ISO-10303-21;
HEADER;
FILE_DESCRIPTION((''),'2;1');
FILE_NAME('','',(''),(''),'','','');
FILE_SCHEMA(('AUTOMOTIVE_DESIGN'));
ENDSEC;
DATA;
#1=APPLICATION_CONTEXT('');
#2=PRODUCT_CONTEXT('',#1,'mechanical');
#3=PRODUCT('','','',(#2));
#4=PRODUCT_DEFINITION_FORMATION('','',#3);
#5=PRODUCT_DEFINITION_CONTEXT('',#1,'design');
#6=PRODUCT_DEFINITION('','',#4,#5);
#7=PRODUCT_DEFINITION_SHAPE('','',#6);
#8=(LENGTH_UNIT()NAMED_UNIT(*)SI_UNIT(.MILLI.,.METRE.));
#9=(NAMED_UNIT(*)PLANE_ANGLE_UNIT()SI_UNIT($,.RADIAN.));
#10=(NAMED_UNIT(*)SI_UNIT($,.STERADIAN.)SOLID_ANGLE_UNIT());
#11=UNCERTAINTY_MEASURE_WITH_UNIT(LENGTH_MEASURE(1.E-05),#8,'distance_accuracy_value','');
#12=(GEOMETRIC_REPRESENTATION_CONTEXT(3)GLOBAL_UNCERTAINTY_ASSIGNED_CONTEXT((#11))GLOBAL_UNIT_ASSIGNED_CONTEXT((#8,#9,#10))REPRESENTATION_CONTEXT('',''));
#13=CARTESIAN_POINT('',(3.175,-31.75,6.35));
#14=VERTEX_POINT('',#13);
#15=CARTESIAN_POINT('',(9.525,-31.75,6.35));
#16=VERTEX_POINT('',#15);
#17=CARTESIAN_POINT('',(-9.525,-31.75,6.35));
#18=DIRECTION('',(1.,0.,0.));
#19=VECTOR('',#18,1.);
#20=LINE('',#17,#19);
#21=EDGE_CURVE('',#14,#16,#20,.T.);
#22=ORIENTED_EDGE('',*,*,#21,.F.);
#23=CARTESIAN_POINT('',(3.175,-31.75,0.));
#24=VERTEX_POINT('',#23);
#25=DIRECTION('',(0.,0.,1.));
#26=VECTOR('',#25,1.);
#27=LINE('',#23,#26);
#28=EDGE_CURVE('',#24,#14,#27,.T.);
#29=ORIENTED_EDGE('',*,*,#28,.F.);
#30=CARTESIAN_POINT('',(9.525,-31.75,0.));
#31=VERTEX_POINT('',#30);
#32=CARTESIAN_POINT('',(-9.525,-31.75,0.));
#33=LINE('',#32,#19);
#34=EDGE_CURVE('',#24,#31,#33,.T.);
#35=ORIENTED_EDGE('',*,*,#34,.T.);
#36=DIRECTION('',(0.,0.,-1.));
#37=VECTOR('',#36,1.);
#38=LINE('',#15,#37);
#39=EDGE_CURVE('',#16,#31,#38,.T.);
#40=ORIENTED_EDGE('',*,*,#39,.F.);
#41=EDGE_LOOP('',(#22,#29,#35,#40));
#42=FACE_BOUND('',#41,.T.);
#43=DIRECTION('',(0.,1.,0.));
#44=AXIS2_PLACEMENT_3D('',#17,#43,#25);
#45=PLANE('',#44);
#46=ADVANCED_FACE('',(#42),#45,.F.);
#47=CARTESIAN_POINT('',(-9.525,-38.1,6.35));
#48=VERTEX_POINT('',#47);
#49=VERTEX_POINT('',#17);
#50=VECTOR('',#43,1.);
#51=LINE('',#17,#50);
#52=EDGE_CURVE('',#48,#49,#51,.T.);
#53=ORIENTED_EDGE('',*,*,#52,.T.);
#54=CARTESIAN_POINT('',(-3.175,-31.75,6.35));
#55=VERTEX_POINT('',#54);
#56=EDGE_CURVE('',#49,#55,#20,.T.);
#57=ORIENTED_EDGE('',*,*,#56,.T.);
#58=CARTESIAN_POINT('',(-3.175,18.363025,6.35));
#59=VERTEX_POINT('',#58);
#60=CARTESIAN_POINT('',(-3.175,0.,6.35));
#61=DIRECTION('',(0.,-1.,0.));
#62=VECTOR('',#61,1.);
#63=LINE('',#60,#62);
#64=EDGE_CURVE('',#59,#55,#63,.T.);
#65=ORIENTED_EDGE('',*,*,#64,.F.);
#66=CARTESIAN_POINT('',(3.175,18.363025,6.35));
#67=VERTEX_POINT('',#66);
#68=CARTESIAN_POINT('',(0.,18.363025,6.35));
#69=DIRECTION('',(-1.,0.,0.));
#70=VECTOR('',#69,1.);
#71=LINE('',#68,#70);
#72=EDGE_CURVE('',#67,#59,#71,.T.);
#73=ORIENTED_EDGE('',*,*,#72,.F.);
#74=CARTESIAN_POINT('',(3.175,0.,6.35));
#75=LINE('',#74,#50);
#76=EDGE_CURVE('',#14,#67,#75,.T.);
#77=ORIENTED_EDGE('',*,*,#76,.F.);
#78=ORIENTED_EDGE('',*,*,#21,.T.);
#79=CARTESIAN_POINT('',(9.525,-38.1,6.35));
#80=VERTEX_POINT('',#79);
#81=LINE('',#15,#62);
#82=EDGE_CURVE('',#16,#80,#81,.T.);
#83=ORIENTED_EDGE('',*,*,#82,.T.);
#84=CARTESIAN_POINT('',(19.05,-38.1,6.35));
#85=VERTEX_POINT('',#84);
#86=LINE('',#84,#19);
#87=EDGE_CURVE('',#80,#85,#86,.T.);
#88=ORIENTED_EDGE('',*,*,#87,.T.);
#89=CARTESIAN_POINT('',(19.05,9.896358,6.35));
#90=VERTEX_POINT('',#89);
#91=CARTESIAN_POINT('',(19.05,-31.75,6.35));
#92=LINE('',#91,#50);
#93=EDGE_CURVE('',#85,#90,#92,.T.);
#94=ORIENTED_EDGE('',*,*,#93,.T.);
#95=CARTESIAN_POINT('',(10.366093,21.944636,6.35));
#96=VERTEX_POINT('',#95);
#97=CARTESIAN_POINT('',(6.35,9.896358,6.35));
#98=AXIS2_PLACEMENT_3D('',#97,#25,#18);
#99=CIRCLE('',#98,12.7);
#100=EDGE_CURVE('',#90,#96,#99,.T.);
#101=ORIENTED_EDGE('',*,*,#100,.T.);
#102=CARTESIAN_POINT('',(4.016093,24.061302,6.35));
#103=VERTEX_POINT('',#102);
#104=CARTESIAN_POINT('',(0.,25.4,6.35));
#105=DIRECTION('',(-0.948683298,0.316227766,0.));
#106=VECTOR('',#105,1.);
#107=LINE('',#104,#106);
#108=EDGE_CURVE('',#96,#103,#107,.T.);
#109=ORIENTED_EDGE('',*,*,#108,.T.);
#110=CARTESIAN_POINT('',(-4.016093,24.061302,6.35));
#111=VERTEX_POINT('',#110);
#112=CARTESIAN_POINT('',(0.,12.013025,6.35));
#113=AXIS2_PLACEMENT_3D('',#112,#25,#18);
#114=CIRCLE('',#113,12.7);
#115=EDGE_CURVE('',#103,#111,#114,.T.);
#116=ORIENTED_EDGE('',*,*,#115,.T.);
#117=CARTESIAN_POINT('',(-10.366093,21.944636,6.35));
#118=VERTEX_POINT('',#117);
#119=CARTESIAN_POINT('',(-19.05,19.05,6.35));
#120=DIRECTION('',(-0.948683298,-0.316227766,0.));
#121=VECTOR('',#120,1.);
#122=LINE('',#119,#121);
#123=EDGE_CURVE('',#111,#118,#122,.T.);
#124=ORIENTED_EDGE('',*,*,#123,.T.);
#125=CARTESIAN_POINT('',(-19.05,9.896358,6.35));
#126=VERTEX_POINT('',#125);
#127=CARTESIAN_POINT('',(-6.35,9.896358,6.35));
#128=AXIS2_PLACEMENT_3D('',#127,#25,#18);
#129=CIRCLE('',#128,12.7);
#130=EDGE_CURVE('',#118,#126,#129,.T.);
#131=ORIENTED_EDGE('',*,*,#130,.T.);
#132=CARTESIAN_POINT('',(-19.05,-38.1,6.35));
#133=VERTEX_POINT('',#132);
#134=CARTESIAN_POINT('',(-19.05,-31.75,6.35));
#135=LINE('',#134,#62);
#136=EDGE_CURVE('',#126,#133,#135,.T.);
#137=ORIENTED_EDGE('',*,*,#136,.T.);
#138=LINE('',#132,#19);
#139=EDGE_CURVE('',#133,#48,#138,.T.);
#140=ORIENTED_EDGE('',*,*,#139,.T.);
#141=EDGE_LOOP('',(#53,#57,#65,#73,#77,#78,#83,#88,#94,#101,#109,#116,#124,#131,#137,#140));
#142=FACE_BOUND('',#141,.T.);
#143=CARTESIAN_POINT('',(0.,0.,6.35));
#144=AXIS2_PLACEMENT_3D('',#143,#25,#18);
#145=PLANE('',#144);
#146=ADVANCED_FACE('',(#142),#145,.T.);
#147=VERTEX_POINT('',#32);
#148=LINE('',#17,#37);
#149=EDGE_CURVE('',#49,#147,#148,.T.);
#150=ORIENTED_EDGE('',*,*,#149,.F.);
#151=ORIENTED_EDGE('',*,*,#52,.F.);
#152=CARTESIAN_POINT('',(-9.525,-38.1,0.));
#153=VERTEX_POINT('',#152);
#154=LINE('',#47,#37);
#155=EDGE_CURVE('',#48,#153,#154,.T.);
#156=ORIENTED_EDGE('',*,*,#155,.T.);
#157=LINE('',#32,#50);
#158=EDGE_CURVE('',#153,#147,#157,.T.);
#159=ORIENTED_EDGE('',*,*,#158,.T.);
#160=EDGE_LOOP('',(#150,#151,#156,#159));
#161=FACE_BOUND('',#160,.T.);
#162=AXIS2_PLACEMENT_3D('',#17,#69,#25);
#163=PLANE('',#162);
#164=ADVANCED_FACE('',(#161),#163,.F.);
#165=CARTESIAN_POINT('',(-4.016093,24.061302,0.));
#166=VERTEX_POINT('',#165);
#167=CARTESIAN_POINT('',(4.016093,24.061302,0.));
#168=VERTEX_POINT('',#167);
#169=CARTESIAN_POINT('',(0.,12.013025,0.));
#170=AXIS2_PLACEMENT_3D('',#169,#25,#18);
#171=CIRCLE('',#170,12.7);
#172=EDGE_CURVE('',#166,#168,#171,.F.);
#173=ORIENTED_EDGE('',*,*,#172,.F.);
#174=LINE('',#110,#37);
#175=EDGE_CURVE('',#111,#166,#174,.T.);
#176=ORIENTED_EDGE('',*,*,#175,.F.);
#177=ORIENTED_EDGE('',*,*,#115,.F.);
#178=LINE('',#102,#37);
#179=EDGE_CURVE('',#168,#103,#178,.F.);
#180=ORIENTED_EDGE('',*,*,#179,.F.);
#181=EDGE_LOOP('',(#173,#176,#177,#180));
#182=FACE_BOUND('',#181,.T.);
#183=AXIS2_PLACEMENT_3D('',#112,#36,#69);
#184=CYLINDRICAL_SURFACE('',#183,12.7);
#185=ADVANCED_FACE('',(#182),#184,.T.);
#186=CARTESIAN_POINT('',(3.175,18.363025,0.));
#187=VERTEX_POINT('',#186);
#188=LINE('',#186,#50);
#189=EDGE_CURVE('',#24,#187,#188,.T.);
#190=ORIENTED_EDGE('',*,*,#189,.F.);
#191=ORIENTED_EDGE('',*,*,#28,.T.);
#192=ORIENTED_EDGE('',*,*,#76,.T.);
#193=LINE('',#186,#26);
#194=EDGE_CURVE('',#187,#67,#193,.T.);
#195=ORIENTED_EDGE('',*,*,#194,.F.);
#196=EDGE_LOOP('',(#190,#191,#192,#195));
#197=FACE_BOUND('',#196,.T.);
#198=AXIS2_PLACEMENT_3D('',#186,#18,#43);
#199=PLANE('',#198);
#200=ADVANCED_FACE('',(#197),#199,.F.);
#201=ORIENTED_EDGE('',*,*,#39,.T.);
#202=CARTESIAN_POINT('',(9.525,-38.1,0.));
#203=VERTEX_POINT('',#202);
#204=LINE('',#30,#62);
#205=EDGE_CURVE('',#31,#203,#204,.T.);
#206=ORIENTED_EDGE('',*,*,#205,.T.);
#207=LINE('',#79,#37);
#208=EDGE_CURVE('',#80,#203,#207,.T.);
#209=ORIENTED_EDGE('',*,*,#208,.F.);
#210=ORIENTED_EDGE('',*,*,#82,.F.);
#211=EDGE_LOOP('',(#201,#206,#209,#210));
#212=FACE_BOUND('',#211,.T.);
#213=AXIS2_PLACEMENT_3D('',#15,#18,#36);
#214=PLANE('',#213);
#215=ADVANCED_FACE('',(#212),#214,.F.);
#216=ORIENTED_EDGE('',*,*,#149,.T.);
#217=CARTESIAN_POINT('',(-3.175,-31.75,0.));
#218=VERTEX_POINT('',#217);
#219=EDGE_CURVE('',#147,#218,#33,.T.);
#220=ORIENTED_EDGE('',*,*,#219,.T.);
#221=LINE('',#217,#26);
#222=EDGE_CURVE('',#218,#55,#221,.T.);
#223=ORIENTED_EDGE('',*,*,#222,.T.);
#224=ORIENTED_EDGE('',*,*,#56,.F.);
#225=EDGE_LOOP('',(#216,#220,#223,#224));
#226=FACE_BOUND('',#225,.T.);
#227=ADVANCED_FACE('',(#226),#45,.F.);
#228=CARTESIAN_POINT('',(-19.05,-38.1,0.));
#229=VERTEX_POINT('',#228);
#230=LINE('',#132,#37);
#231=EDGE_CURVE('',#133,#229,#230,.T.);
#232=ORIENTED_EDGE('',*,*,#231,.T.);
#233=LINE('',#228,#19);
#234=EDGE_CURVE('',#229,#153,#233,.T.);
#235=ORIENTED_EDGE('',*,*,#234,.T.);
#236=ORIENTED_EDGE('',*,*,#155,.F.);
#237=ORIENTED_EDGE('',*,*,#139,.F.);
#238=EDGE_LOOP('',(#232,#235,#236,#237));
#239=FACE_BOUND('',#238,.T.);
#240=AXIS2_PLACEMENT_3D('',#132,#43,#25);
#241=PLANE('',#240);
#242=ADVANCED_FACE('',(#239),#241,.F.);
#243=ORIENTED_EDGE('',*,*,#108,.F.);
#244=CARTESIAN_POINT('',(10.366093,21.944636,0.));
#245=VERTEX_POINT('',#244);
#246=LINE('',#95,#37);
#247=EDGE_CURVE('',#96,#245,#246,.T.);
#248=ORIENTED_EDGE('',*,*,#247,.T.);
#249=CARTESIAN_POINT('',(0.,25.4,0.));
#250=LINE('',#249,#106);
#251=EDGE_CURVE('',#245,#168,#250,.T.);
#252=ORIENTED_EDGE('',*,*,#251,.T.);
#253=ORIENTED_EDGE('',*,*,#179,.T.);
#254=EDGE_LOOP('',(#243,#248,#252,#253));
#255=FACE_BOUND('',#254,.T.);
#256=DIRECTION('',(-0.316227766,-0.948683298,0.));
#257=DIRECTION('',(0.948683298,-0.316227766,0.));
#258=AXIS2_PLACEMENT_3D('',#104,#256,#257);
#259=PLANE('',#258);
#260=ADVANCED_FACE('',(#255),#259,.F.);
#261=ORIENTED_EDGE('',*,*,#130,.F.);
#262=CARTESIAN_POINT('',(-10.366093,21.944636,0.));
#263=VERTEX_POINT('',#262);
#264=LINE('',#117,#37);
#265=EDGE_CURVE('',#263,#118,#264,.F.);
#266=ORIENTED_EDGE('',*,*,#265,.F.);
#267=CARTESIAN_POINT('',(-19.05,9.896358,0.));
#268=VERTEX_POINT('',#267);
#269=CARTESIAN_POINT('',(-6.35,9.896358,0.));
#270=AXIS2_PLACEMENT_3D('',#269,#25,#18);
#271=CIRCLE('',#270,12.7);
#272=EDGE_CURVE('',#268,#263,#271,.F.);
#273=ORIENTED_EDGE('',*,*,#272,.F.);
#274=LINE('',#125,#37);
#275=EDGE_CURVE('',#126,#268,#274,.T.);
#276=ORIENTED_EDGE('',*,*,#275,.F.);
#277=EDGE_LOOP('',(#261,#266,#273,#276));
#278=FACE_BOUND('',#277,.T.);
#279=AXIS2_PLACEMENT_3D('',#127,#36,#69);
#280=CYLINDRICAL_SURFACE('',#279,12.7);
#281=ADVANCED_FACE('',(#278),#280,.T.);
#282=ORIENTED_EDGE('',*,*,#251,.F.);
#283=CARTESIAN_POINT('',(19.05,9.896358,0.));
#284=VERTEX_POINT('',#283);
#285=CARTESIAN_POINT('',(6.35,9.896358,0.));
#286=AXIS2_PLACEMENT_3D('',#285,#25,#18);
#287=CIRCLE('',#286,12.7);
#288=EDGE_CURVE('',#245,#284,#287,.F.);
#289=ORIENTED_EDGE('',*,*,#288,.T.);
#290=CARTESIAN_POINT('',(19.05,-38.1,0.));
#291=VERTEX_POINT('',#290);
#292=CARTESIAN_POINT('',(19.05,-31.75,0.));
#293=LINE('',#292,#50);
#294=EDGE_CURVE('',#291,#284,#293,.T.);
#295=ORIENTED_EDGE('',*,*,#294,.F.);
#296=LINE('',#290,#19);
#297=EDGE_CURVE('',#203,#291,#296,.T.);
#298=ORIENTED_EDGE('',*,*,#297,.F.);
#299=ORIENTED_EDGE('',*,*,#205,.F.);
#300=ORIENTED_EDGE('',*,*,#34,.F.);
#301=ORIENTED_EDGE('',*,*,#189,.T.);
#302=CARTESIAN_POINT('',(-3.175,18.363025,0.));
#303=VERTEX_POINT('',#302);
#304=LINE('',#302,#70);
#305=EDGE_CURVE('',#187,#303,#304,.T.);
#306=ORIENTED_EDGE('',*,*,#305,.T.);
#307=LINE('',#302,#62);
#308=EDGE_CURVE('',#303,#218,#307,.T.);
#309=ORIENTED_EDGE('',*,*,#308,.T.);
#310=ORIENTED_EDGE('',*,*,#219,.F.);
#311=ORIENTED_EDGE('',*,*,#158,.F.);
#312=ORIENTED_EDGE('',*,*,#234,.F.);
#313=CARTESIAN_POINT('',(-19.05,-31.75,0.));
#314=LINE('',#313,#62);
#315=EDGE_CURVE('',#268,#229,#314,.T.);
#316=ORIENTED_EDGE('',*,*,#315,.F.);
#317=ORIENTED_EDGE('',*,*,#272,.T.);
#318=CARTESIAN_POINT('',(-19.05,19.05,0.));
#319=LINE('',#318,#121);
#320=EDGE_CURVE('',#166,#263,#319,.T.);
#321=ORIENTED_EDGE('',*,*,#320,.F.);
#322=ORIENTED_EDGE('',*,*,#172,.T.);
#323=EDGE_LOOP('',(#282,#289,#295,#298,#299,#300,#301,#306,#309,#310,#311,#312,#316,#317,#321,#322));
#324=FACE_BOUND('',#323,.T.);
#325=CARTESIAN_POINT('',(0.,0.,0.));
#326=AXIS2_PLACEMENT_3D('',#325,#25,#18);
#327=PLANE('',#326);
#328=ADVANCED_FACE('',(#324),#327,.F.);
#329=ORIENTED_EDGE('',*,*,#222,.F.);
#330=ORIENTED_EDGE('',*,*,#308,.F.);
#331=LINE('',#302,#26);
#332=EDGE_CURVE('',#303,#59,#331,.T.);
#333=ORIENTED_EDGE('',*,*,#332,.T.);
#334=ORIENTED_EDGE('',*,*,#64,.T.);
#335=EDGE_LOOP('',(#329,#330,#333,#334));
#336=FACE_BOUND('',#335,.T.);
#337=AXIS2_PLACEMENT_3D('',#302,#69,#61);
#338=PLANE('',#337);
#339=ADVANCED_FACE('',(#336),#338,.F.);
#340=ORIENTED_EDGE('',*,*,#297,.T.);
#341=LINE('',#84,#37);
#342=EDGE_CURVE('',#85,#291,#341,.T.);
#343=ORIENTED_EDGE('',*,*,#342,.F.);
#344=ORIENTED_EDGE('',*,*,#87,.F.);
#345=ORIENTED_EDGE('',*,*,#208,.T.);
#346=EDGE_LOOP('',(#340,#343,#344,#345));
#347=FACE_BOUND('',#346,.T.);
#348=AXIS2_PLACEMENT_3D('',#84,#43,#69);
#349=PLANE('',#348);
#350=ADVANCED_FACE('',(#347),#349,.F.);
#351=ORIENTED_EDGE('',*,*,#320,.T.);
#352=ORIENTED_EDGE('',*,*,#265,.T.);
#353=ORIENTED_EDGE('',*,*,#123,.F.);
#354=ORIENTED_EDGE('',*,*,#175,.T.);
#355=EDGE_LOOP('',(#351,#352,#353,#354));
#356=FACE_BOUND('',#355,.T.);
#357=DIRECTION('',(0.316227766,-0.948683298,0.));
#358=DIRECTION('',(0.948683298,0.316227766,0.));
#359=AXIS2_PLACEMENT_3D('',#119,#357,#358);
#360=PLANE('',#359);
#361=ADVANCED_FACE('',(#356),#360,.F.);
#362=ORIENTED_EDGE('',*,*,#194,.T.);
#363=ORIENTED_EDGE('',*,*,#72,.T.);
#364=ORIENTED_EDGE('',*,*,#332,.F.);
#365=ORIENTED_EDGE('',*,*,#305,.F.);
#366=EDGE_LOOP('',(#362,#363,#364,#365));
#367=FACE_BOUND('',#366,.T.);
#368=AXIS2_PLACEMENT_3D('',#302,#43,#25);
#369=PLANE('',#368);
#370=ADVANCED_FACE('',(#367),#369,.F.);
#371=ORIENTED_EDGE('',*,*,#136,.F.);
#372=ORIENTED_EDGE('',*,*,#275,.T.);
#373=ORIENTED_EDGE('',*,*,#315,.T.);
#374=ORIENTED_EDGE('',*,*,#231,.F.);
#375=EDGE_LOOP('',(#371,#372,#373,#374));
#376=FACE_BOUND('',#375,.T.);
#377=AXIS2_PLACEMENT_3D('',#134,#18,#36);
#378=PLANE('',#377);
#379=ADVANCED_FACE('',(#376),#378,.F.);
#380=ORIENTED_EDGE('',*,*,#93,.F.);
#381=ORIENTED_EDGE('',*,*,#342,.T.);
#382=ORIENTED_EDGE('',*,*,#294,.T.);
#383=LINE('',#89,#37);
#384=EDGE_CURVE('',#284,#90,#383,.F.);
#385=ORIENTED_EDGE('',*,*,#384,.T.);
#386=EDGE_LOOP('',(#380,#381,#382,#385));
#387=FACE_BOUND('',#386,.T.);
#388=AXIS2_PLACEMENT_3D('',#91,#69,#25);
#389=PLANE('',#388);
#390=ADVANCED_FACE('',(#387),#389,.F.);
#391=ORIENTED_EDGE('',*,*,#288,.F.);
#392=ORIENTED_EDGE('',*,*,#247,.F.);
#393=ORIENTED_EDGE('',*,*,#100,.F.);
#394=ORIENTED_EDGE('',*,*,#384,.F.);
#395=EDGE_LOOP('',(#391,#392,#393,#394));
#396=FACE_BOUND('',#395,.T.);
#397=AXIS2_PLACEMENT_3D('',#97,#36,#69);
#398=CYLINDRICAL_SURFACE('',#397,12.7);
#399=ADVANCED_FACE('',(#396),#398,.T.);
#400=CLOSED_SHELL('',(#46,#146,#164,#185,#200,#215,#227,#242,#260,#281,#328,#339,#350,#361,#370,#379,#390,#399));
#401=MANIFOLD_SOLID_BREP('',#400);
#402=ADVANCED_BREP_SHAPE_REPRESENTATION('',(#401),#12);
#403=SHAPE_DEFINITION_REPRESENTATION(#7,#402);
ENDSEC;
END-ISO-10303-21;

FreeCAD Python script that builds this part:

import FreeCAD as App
import Part
import Sketcher
Q = App.Units.Quantity


def edges_at(feature, points):
    """Names of the edges that pass closest to the given points."""
    edges = feature.Shape.Edges
    near = lambda p: min(range(len(edges)), key=lambda i: edges[i].distToShape(Part.Vertex(*p))[0])
    return sorted({f"Edge{near(p) + 1}" for p in points})


def add_polygon(sketch, points):
    """Adds a closed chain of lines whose ends are joined by coincident constraints."""
    first, n = sketch.GeometryCount, len(points)
    for a, b in zip(points, points[1:] + points[:1]):
        sketch.addGeometry(Part.LineSegment(App.Vector(*a, 0), App.Vector(*b, 0)), False)
    for i in range(n):
        sketch.addConstraint(Sketcher.Constraint("Coincident", first + i, 2, first + (i + 1) % n, 1))

doc = App.newDocument("Part")
body = doc.addObject("PartDesign::Body", "Body")

# Sketch on XY plane
sketch1 = body.newObject("Sketcher::SketchObject", "Sketch")
sketch1.AttachmentSupport = (doc.getObject("XY_Plane"), [""])
sketch1.MapMode = "FlatFace"
add_polygon(sketch1, [(-10, -32), (10, -32), (10, -38), (19, -38), (19, 19), (0, 25), (-19, 19), (-19, -38), (-10, -38)])  # lines 0-8
sketch1.addConstraint(Sketcher.Constraint("Horizontal", 0))
sketch1.addConstraint(Sketcher.Constraint("Vertical", 1))
sketch1.addConstraint(Sketcher.Constraint("Horizontal", 2))
sketch1.addConstraint(Sketcher.Constraint("Vertical", 3))
sketch1.addConstraint(Sketcher.Constraint("Vertical", 6))
sketch1.addConstraint(Sketcher.Constraint("Horizontal", 7))
sketch1.addConstraint(Sketcher.Constraint("Vertical", 8))
sketch1.addConstraint(Sketcher.Constraint("Symmetric", 3, 2, 5, 2, -2))
sketch1.addConstraint(Sketcher.Constraint("Symmetric", 1, 2, 7, 2, -2))
sketch1.addConstraint(Sketcher.Constraint("PointOnObject", 4, 2, -2))
sketch1.addConstraint(Sketcher.Constraint("DistanceY", -1, 1, 4, 2, Q("1 in")))
sketch1.addConstraint(Sketcher.Constraint("DistanceY", 0, 2, 3, 2, Q("2 in")))
sketch1.addConstraint(Sketcher.Constraint("DistanceX", 0, 1, 0, 2, Q("0.75 in")))
sketch1.addConstraint(Sketcher.Constraint("DistanceY", 1, 2, 1, 1, Q("0.25 in")))
sketch1.addConstraint(Sketcher.Constraint("DistanceY", 1, 2, -1, 1, Q("1.5 in")))
sketch1.addConstraint(Sketcher.Constraint("DistanceX", 5, 2, 3, 2, Q("1.5 in")))
pad1 = body.newObject("PartDesign::Pad", "Pad")
pad1.Profile = sketch1
pad1.Length = Q("0.25 in")
doc.recompute()

fillet = body.newObject("PartDesign::Fillet", "Fillet")
fillet.Base = (pad1, edges_at(pad1, [(-19.05, 19.05, 3.175), (0, 25.4, 3.175), (19.05, 19.05, 3.175)]))
fillet.Radius = Q("0.5 in")

# Sketch on XY plane
sketch2 = body.newObject("Sketcher::SketchObject", "Sketch001")
sketch2.AttachmentSupport = (doc.getObject("XY_Plane"), [""])
sketch2.MapMode = "FlatFace"
sketch2.AttachmentOffset = App.Placement(App.Vector(0, 0, 0.25 * 25.4), App.Rotation())
add_polygon(sketch2, [(-3, 18), (-3, -32), (3, -32), (3, 18)])  # lines 0-3
sketch2.addConstraint(Sketcher.Constraint("Vertical", 0))
sketch2.addConstraint(Sketcher.Constraint("Horizontal", 1))
sketch2.addConstraint(Sketcher.Constraint("Vertical", 2))
sketch2.addConstraint(Sketcher.Constraint("Horizontal", 3))
sketch2.addConstraint(Sketcher.Constraint("DistanceX", 1, 1, 1, 2, Q("0.25 in")))
sketch2.addConstraint(Sketcher.Constraint("DistanceY", 0, 2, -1, 1, Q("1.25 in")))
sketch2.addConstraint(Sketcher.Constraint("DistanceX", 0, 2, -1, 1, Q("0.125 in")))
sketch2.addConstraint(Sketcher.Constraint("DistanceY", 0, 2, 0, 1, 50.113025))
pocket1 = body.newObject("PartDesign::Pocket", "Pocket")
pocket1.Profile = sketch2
pocket1.Type = "ThroughAll"
pocket1.Midplane = True

doc.recompute()
